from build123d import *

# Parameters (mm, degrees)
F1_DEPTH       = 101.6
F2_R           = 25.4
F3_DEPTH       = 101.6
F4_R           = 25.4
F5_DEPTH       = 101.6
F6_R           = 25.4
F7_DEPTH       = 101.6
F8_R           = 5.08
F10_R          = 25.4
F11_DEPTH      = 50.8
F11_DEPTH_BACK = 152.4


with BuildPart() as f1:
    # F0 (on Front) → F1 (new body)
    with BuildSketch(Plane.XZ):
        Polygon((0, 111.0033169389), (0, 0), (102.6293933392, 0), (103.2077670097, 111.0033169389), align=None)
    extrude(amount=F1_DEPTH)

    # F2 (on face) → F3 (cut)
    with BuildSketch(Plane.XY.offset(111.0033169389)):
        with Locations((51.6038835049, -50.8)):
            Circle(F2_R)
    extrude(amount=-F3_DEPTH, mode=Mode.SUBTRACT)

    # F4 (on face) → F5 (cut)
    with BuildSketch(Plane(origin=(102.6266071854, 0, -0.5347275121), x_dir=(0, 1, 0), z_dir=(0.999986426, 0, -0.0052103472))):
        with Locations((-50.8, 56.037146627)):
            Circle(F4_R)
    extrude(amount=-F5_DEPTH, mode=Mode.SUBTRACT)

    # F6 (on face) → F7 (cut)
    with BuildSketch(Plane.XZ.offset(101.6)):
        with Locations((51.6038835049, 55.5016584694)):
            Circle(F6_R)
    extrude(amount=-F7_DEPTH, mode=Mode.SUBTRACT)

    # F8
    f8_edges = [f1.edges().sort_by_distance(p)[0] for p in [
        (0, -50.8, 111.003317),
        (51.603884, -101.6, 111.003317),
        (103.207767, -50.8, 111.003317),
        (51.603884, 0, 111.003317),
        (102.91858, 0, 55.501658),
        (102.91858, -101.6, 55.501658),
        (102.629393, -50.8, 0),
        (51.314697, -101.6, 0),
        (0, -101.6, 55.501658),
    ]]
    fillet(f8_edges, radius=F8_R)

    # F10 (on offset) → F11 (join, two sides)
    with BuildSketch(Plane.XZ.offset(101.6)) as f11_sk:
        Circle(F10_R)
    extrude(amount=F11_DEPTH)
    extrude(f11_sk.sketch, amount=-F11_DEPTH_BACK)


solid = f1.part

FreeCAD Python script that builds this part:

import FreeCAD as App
import Part
import Sketcher

V = App.Vector
Q = App.Units.Quantity


def edges_at(feature, points):
    """Names of the edges that pass closest to the given points."""
    edges = feature.Shape.Edges
    near = lambda p: min(range(len(edges)), key=lambda i: edges[i].distToShape(Part.Vertex(*p))[0])
    return sorted({f"Edge{near(p) + 1}" for p in points})

doc = App.newDocument("Part")
params = doc.addObject("Spreadsheet::Sheet", "Params")
for row, (alias, value) in enumerate([
    ("pad1_length", "4 in"),
    ("sketch2_diameter", "2 in"),
    ("pocket1_length", "4 in"),
    ("sketch3_diameter", "2 in"),
    ("pocket2_length", "4 in"),
    ("sketch4_diameter", "2 in"),
    ("pocket3_length", "4 in"),
    ("fillet_radius", "0.2 in"),
    ("sketch5_diameter", "2 in"),
    ("pad2_length", "2 in"),
    ("pad2_length2", "6 in"),
], start=1):
    params.set(f"A{row}", alias)
    params.set(f"B{row}", "=" + value)
    params.setAlias(f"B{row}", alias)

body = doc.addObject("PartDesign::Body", "Body")

# Sketch on XZ plane
sketch1 = doc.addObject("Sketcher::SketchObject", "Sketch")
body.addObject(sketch1)
sketch1.AttachmentSupport = (doc.XZ_Plane, [""])
sketch1.MapMode = "FlatFace"
sketch1.addGeometry(Part.LineSegment(V(0, 111.003317, 0), V(0, 0, 0)), False)
sketch1.addGeometry(Part.LineSegment(V(0, 0, 0), V(102.629393, 0, 0)), False)
sketch1.addGeometry(Part.LineSegment(V(102.629393, 0, 0), V(103.207767, 111.003317, 0)), False)
sketch1.addGeometry(Part.LineSegment(V(103.207767, 111.003317, 0), V(0, 111.003317, 0)), False)
sketch1.addConstraint(Sketcher.Constraint("Coincident", 0, 2, 1, 1))
sketch1.addConstraint(Sketcher.Constraint("Coincident", 1, 2, 2, 1))
sketch1.addConstraint(Sketcher.Constraint("Coincident", 2, 2, 3, 1))
sketch1.addConstraint(Sketcher.Constraint("Coincident", 3, 2, 0, 1))
sketch1.addConstraint(Sketcher.Constraint("Vertical", 0))
sketch1.addConstraint(Sketcher.Constraint("Horizontal", 1))
sketch1.addConstraint(Sketcher.Constraint("Horizontal", 3))
sketch1.addConstraint(Sketcher.Constraint("Coincident", 0, 2, -1, 1))
sketch1.addConstraint(Sketcher.Constraint("DistanceX", 1, 1, 1, 2, 102.629393))
sketch1.addConstraint(Sketcher.Constraint("DistanceX", 3, 2, 3, 1, 103.207767))
sketch1.addConstraint(Sketcher.Constraint("DistanceY", 0, 2, 0, 1, 111.003317))
pad1 = doc.addObject("PartDesign::Pad", "Pad")
body.addObject(pad1)
pad1.Profile = sketch1
pad1.setExpression("Length", "Params.pad1_length")

# Sketch on XY plane
sketch2 = doc.addObject("Sketcher::SketchObject", "Sketch001")
body.addObject(sketch2)
sketch2.AttachmentSupport = (doc.XY_Plane, [""])
sketch2.MapMode = "FlatFace"
sketch2.AttachmentOffset = App.Placement(V(0, 0, 111.003317), App.Rotation())
sketch2.addGeometry(Part.Circle(V(51.603884, -50.8, 0), V(0, 0, 1), 25.4), False)
sketch2.addConstraint(Sketcher.Constraint("Diameter", 0, Q("2 in")))
sketch2.addConstraint(Sketcher.Constraint("DistanceY", 0, 3, -1, 1, Q("2 in")))
sketch2.addConstraint(Sketcher.Constraint("DistanceX", -1, 1, 0, 3, 51.603884))
sketch2.setExpression("Constraints[0]", "Params.sketch2_diameter")
pocket1 = doc.addObject("PartDesign::Pocket", "Pocket")
body.addObject(pocket1)
pocket1.Profile = sketch2
pocket1.setExpression("Length", "Params.pocket1_length")

# Sketch on an angled plane
sketch3 = doc.addObject("Sketcher::SketchObject", "Sketch002")
body.addObject(sketch3)
sketch3.Placement = App.Placement(V(102.626607, 0, -0.534728), App.Rotation(V(0, 1, 0), V(0.005210347, 0, 0.999986426), V(0.999986426, 0, -0.005210347), "ZXY"))
sketch3.addGeometry(Part.Circle(V(-50.8, 56.037147, 0), V(0, 0, 1), 25.4), False)
sketch3.addConstraint(Sketcher.Constraint("Diameter", 0, Q("2 in")))
sketch3.addConstraint(Sketcher.Constraint("DistanceX", 0, 3, -1, 1, Q("2 in")))
sketch3.addConstraint(Sketcher.Constraint("DistanceY", -1, 1, 0, 3, 56.037147))
sketch3.setExpression("Constraints[0]", "Params.sketch3_diameter")
pocket2 = doc.addObject("PartDesign::Pocket", "Pocket001")
body.addObject(pocket2)
pocket2.Profile = sketch3
pocket2.setExpression("Length", "Params.pocket2_length")

# Sketch on XZ plane
sketch4 = doc.addObject("Sketcher::SketchObject", "Sketch003")
body.addObject(sketch4)
sketch4.AttachmentSupport = (doc.XZ_Plane, [""])
sketch4.MapMode = "FlatFace"
sketch4.AttachmentOffset = App.Placement(V(0, 0, 4 * 25.4), App.Rotation())
sketch4.addGeometry(Part.Circle(V(51.603884, 55.501658, 0), V(0, 0, 1), 25.4), False)
sketch4.addConstraint(Sketcher.Constraint("Diameter", 0, Q("2 in")))
sketch4.addConstraint(Sketcher.Constraint("DistanceY", -1, 1, 0, 3, 55.501658))
sketch4.addConstraint(Sketcher.Constraint("DistanceX", -1, 1, 0, 3, 51.603884))
sketch4.setExpression("Constraints[0]", "Params.sketch4_diameter")
pocket3 = doc.addObject("PartDesign::Pocket", "Pocket002")
body.addObject(pocket3)
pocket3.Profile = sketch4
pocket3.setExpression("Length", "Params.pocket3_length")
doc.recompute()

fillet = doc.addObject("PartDesign::Fillet", "Fillet")
body.addObject(fillet)
fillet.Base = (pocket3, edges_at(pocket3, [
    (0, -50.8, 111.003),
    (51.604, -101.6, 111.003),
    (103.208, -50.8, 111.003),
    (51.604, 0, 111.003),
    (102.919, 0, 55.502),
    (102.919, -101.6, 55.502),
    (102.629, -50.8, 0),
    (51.315, -101.6, 0),
    (0, -101.6, 55.502),
]))
fillet.setExpression("Radius", "Params.fillet_radius")

# Sketch on XZ plane
sketch5 = doc.addObject("Sketcher::SketchObject", "Sketch004")
body.addObject(sketch5)
sketch5.AttachmentSupport = (doc.XZ_Plane, [""])
sketch5.MapMode = "FlatFace"
sketch5.AttachmentOffset = App.Placement(V(0, 0, 4 * 25.4), App.Rotation())
sketch5.addGeometry(Part.Circle(V(0, 0, 0), V(0, 0, 1), 25.4), False)
sketch5.addConstraint(Sketcher.Constraint("Coincident", 0, 3, -1, 1))
sketch5.addConstraint(Sketcher.Constraint("Diameter", 0, Q("2 in")))
sketch5.setExpression("Constraints[1]", "Params.sketch5_diameter")
pad2 = doc.addObject("PartDesign::Pad", "Pad001")
body.addObject(pad2)
pad2.Profile = sketch5
pad2.Type = "TwoLengths"
pad2.setExpression("Length", "Params.pad2_length")
pad2.setExpression("Length2", "Params.pad2_length2")

doc.recompute()
